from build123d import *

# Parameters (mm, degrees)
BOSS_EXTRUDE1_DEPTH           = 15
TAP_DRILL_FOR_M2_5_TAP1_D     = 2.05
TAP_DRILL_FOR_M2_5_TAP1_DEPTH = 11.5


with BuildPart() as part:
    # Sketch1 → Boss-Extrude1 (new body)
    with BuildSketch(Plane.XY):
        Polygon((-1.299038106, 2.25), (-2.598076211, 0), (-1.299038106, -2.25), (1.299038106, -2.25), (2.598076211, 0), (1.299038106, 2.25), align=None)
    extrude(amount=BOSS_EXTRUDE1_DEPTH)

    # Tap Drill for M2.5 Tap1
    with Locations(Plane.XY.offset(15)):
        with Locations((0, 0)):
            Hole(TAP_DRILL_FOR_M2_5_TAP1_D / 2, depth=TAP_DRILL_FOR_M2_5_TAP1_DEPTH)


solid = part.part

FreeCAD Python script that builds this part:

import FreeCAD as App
import Part
import Sketcher
Q = App.Units.Quantity

doc = App.newDocument("Part")
body = doc.addObject("PartDesign::Body", "Body")

# Sketch on XY plane
sketch1 = body.newObject("Sketcher::SketchObject", "Sketch")
sketch1.AttachmentSupport = (doc.getObject("XY_Plane"), [""])
sketch1.MapMode = "FlatFace"
sketch1.addGeometry(Part.LineSegment(App.Vector(-1.299038, 2.25, 0), App.Vector(-2.598076, 0, 0)), False)
sketch1.addGeometry(Part.LineSegment(App.Vector(-2.598076, 0, 0), App.Vector(-1.299038, -2.25, 0)), False)
sketch1.addGeometry(Part.LineSegment(App.Vector(-1.299038, -2.25, 0), App.Vector(1.299038, -2.25, 0)), False)
sketch1.addGeometry(Part.LineSegment(App.Vector(1.299038, -2.25, 0), App.Vector(2.598076, 0, 0)), False)
sketch1.addGeometry(Part.LineSegment(App.Vector(2.598076, 0, 0), App.Vector(1.299038, 2.25, 0)), False)
sketch1.addGeometry(Part.LineSegment(App.Vector(1.299038, 2.25, 0), App.Vector(-1.299038, 2.25, 0)), False)
sketch1.addConstraint(Sketcher.Constraint("Coincident", 0, 2, 1, 1))
sketch1.addConstraint(Sketcher.Constraint("Coincident", 1, 2, 2, 1))
sketch1.addConstraint(Sketcher.Constraint("Coincident", 2, 2, 3, 1))
sketch1.addConstraint(Sketcher.Constraint("Coincident", 3, 2, 4, 1))
sketch1.addConstraint(Sketcher.Constraint("Coincident", 4, 2, 5, 1))
sketch1.addConstraint(Sketcher.Constraint("Coincident", 5, 2, 0, 1))
sketch1.addConstraint(Sketcher.Constraint("Horizontal", 2))
sketch1.addConstraint(Sketcher.Constraint("Horizontal", 5))
sketch1.addConstraint(Sketcher.Constraint("Symmetric", 0, 2, 3, 2, -1, 1))
sketch1.addConstraint(Sketcher.Constraint("Symmetric", 1, 2, 4, 2, -1, 1))
sketch1.addConstraint(Sketcher.Constraint("PointOnObject", 0, 2, -1))
sketch1.addConstraint(Sketcher.Constraint("Parallel", 0, 3))
sketch1.addConstraint(Sketcher.Constraint("Vertical", 2, 2, 4, 2))
sketch1.addConstraint(Sketcher.Constraint("Angle", 0, Q("-120 deg")))
sketch1.addConstraint(Sketcher.Constraint("DistanceY", 2, 2, 4, 2, Q("4.5 mm")))
sketch1.addConstraint(Sketcher.Constraint("DistanceX", 2, 1, 2, 2, Q("2.598076 mm")))
pad1 = body.newObject("PartDesign::Pad", "Pad")
pad1.Profile = sketch1
pad1.Length = 15

# Sketch on XY plane
sketch2 = body.newObject("Sketcher::SketchObject", "Sketch001")
sketch2.AttachmentSupport = (doc.getObject("XY_Plane"), [""])
sketch2.MapMode = "FlatFace"
sketch2.AttachmentOffset = App.Placement(App.Vector(0, 0, 15), App.Rotation())
sketch2.addGeometry(Part.Circle(App.Vector(0, 0, 0), App.Vector(0, 0, 1), 1.025), False)
sketch2.addConstraint(Sketcher.Constraint("Coincident", 0, 3, -1, 1))
sketch2.addConstraint(Sketcher.Constraint("Diameter", 0, Q("2.05 mm")))
doc.recompute()
hole = body.newObject("PartDesign::Hole", "Hole")
hole.Profile = sketch2
hole.ThreadType = "None"
hole.Diameter = 2.05
hole.DepthType = "Dimension"
hole.Depth = 11.5
hole.DrillPoint = "Flat"

doc.recompute()
